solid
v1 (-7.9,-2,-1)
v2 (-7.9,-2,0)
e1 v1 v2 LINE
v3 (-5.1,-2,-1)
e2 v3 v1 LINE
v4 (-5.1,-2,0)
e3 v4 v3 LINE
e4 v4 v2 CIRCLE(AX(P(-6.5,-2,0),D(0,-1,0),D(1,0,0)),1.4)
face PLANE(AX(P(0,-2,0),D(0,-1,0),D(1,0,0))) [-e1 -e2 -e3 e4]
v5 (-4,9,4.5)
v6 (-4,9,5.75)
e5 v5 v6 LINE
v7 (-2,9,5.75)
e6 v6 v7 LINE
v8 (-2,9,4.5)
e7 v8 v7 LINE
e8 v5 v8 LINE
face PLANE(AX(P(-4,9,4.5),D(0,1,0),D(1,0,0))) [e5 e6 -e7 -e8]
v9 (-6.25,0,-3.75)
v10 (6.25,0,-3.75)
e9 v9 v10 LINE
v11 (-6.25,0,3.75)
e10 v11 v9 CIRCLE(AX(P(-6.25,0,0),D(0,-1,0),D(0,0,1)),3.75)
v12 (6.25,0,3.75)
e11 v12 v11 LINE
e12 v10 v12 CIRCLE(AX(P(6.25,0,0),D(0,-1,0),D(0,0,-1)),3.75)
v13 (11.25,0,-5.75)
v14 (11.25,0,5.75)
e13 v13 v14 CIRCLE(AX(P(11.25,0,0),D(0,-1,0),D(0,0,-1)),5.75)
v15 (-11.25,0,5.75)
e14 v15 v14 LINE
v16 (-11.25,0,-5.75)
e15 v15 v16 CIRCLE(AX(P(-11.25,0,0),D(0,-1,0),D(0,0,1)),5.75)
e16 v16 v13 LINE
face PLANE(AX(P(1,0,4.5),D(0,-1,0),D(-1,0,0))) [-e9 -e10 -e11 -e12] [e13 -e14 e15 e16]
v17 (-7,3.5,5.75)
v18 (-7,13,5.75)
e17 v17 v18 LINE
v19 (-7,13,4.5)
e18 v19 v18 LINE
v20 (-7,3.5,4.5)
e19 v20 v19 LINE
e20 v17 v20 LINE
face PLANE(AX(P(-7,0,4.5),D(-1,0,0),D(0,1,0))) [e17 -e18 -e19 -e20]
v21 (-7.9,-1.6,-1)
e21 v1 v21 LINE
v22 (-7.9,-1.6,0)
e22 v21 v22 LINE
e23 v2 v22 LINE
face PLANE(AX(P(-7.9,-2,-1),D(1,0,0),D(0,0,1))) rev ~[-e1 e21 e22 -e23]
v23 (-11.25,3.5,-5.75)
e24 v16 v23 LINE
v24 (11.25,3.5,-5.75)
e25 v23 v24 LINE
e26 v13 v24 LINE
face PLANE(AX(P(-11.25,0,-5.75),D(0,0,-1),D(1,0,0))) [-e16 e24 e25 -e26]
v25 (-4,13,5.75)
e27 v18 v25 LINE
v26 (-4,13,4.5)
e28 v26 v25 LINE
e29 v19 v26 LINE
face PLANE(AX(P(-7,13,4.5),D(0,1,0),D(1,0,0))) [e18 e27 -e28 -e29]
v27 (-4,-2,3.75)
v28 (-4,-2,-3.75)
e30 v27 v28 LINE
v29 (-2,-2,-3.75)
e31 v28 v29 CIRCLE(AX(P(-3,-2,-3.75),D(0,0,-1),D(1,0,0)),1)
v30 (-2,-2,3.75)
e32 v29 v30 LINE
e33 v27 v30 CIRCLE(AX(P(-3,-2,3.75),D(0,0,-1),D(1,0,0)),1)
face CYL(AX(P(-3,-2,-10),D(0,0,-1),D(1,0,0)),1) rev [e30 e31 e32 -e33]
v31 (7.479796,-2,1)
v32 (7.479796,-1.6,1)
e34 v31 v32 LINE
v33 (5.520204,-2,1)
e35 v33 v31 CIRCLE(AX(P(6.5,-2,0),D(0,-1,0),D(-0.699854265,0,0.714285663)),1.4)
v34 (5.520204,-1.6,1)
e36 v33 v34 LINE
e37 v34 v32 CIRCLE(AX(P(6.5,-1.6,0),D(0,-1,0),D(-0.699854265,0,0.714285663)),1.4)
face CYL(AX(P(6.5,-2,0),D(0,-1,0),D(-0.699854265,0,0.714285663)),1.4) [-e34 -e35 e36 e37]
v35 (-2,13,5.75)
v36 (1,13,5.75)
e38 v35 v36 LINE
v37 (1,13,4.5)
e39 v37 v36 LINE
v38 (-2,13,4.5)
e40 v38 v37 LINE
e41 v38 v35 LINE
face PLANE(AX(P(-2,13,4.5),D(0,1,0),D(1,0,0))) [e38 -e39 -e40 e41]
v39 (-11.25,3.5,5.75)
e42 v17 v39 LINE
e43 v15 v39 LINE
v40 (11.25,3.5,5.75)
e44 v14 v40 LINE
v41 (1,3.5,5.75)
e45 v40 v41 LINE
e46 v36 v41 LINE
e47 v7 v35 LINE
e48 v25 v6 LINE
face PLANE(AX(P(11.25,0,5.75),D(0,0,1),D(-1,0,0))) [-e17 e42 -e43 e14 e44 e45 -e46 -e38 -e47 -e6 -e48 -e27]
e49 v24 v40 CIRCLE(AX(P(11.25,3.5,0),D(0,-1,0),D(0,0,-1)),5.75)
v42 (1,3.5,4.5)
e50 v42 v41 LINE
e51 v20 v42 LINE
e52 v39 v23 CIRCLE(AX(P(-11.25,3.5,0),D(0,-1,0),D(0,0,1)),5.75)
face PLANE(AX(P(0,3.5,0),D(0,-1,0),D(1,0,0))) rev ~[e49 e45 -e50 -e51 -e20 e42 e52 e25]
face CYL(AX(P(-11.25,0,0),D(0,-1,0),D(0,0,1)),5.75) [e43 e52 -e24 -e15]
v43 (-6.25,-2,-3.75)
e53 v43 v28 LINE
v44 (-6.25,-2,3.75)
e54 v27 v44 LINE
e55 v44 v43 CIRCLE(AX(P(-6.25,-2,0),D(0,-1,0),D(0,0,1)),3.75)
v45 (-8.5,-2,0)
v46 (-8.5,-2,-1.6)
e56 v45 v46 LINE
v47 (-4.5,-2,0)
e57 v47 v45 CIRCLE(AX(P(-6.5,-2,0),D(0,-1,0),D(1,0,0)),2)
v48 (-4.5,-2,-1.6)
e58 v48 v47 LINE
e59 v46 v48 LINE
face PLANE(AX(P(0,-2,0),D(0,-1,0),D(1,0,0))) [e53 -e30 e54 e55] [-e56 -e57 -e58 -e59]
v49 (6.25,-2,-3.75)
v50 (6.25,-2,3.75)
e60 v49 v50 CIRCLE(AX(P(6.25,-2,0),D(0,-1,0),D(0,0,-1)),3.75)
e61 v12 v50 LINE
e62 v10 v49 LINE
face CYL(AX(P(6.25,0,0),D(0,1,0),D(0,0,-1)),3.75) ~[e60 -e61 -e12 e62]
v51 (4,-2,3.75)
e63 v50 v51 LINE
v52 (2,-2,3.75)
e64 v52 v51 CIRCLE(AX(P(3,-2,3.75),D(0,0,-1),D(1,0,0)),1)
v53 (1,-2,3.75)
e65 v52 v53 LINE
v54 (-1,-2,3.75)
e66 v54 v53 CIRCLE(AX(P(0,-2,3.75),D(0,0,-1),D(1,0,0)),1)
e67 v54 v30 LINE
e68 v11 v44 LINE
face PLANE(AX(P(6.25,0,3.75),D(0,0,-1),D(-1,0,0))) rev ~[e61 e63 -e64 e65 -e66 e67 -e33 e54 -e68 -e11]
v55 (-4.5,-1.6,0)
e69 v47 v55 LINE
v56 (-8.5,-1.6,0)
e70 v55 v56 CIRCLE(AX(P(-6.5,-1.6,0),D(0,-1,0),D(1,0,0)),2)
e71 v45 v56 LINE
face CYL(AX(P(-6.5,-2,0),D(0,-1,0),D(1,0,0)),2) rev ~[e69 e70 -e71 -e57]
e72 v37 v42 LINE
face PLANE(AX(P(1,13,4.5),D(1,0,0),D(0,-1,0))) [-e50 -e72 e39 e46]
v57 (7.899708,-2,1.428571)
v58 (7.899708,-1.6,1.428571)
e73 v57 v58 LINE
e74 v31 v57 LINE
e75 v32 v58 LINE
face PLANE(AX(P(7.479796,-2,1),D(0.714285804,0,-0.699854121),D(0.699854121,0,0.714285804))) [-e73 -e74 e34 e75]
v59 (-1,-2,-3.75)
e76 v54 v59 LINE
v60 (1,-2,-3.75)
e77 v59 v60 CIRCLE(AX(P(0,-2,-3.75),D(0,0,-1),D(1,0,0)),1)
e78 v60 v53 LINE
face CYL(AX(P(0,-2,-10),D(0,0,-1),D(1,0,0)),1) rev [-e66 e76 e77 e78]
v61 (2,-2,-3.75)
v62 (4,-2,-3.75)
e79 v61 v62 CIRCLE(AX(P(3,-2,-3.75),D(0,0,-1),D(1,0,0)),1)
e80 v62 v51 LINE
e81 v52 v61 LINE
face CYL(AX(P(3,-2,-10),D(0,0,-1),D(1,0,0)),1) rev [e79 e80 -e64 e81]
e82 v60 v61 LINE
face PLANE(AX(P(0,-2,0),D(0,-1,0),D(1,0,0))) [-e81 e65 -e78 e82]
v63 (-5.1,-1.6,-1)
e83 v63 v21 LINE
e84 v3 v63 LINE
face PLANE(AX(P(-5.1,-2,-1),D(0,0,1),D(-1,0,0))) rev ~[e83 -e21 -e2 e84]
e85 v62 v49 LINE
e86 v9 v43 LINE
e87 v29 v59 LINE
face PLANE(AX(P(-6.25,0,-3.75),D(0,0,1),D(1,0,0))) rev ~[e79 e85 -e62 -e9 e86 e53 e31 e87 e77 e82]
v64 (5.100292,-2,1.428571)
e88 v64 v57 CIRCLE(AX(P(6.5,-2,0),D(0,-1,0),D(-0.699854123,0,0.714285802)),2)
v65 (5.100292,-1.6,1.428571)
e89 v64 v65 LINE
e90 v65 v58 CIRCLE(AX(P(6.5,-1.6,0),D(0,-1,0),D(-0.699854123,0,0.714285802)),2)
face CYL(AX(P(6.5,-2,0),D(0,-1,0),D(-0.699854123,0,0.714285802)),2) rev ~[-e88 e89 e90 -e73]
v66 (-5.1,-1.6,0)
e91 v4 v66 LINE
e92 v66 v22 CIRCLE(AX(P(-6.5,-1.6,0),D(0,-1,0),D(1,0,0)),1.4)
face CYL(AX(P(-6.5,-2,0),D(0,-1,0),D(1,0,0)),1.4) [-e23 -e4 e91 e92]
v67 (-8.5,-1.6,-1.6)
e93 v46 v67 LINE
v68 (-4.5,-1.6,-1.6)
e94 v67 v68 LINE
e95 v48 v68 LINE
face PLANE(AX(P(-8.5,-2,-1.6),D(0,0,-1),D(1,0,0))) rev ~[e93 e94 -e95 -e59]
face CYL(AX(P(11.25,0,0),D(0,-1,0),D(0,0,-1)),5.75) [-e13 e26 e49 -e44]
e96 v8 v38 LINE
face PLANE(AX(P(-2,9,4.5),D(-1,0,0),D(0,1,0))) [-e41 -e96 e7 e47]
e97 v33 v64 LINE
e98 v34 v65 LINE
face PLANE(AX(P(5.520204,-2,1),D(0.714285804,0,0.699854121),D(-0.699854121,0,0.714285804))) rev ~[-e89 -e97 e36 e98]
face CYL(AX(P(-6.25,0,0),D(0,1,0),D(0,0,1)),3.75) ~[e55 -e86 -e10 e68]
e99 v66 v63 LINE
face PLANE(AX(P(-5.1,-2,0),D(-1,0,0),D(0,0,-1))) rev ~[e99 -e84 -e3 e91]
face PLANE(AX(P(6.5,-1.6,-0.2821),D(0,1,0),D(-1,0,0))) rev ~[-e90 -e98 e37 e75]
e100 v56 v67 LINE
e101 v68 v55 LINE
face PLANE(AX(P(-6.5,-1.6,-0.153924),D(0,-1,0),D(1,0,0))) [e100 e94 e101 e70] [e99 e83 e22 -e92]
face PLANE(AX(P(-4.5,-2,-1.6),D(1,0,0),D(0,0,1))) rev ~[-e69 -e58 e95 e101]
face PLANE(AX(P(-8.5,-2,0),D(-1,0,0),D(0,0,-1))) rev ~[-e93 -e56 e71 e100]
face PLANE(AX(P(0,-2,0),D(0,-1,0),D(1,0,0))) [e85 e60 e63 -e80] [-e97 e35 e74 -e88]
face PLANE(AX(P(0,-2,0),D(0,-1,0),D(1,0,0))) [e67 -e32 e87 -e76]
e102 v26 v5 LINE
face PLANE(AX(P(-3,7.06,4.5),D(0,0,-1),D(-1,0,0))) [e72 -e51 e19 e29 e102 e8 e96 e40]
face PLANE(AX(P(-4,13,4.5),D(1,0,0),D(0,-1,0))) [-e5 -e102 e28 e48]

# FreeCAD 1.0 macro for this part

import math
import FreeCAD as App
import Part
import Sketcher

V = App.Vector
Q = App.Units.Quantity

doc = App.newDocument("Part")
params = doc.addObject("Spreadsheet::Sheet", "Params")
for row, (alias, value) in enumerate([
    ("sketch1_radius", "3.75 mm"),
    ("sketch1_width", "12.5 mm"),
    ("pad1_length", "2 mm"),
    ("sketch2_radius", "5.75 mm"),
    ("sketch2_width", "22.5 mm"),
    ("pad2_length", "3.5 mm"),
    ("sketch3_width", "8 mm"),
    ("sketch3_width2", "3 mm"),
    ("sketch3_height", "13 mm"),
    ("sketch3_height2", "4 mm"),
    ("pad3_length", "1.25 mm"),
    ("sketch4_diameter", "2 mm"),
    ("pocket1_length", "20 mm"),
    ("linearpattern_pitch", "3 mm"),
    ("sketch5_radius", "2 mm"),
    ("sketch5_radius2", "1.4 mm"),
    ("sketch5_height", "1 mm"),
    ("sketch5_height2", "1.6 mm"),
    ("pocket2_length", "0.4 mm"),
], start=1):
    params.set(f"A{row}", alias)
    params.set(f"B{row}", "=" + value)
    params.setAlias(f"B{row}", alias)

body = doc.addObject("PartDesign::Body", "Body")

sketch1 = body.newObject("Sketcher::SketchObject", "Sketch")
sketch1.AttachmentSupport = (doc.getObject("XZ_Plane"), [""])
sketch1.MapMode = "FlatFace"
sketch1.addGeometry([
    Part.ArcOfCircle(Part.Circle(V(-6.2, 0, 0), V(0, 0, 1), 3.8), math.radians(90), math.radians(270)),
    Part.LineSegment(V(-6.2, -3.8, 0), V(6.2, -3.8, 0)),
    Part.ArcOfCircle(Part.Circle(V(6.2, 0, 0), V(0, 0, 1), 3.8), math.radians(-90), math.radians(90)),
    Part.LineSegment(V(6.2, 3.8, 0), V(-6.2, 3.8, 0)),
], False)
sketch1.addConstraint([
    Sketcher.Constraint("Tangent", 0, 2, 1, 1),
    Sketcher.Constraint("Tangent", 1, 2, 2, 1),
    Sketcher.Constraint("Tangent", 2, 2, 3, 1),
    Sketcher.Constraint("Tangent", 3, 2, 0, 1),
    Sketcher.Constraint("Horizontal", 1),
    Sketcher.Constraint("Horizontal", 3),
    Sketcher.Constraint("Symmetric", 0, 3, 2, 3, -1, 1),
    Sketcher.Constraint("Radius", 0, Q("3.75 mm")),
    Sketcher.Constraint("DistanceX", 1, 1, 1, 2, Q("12.5 mm")),
])
sketch1.setExpression("Constraints[7]", "Params.sketch1_radius")
sketch1.setExpression("Constraints[8]", "Params.sketch1_width")
pad1 = body.newObject("PartDesign::Pad", "Pad")
pad1.Profile = sketch1
pad1.setExpression("Length", "Params.pad1_length")

sketch2 = body.newObject("Sketcher::SketchObject", "Sketch001")
sketch2.AttachmentSupport = (doc.getObject("XZ_Plane"), [""])
sketch2.MapMode = "FlatFace"
sketch2.addGeometry([
    Part.ArcOfCircle(Part.Circle(V(-11, 0, 0), V(0, 0, 1), 6), math.radians(90), math.radians(270)),
    Part.LineSegment(V(-11, -6, 0), V(11, -6, 0)),
    Part.ArcOfCircle(Part.Circle(V(11, 0, 0), V(0, 0, 1), 6), math.radians(-90), math.radians(90)),
    Part.LineSegment(V(11, 6, 0), V(-11, 6, 0)),
], False)
sketch2.addConstraint([
    Sketcher.Constraint("Tangent", 0, 2, 1, 1),
    Sketcher.Constraint("Tangent", 1, 2, 2, 1),
    Sketcher.Constraint("Tangent", 2, 2, 3, 1),
    Sketcher.Constraint("Tangent", 3, 2, 0, 1),
    Sketcher.Constraint("Horizontal", 1),
    Sketcher.Constraint("Horizontal", 3),
    Sketcher.Constraint("Symmetric", 0, 3, 2, 3, -1, 1),
    Sketcher.Constraint("Radius", 0, Q("5.75 mm")),
    Sketcher.Constraint("DistanceX", 1, 1, 1, 2, Q("22.5 mm")),
])
sketch2.setExpression("Constraints[7]", "Params.sketch2_radius")
sketch2.setExpression("Constraints[8]", "Params.sketch2_width")
pad2 = body.newObject("PartDesign::Pad", "Pad001")
pad2.Profile = sketch2
pad2.setExpression("Length", "Params.pad2_length")
pad2.Reversed = True

sketch3 = body.newObject("Sketcher::SketchObject", "Sketch002")
sketch3.AttachmentSupport = (doc.getObject("XY_Plane"), [""])
sketch3.MapMode = "FlatFace"
sketch3.AttachmentOffset = App.Placement(V(0, 0, 4.5), App.Rotation())
sketch3.addGeometry([
    Part.LineSegment(V(-7, 13, 0), V(-7, 0, 0)),
    Part.LineSegment(V(-7, 0, 0), V(1, 0, 0)),
    Part.LineSegment(V(1, 0, 0), V(1, 13, 0)),
    Part.LineSegment(V(1, 13, 0), V(-2, 13, 0)),
    Part.LineSegment(V(-2, 13, 0), V(-2, 9, 0)),
    Part.LineSegment(V(-2, 9, 0), V(-4, 9, 0)),
    Part.LineSegment(V(-4, 9, 0), V(-4, 13, 0)),
    Part.LineSegment(V(-4, 13, 0), V(-7, 13, 0)),
], False)
sketch3.addConstraint([
    Sketcher.Constraint("Coincident", 0, 2, 1, 1),
    Sketcher.Constraint("Coincident", 1, 2, 2, 1),
    Sketcher.Constraint("Coincident", 2, 2, 3, 1),
    Sketcher.Constraint("Coincident", 3, 2, 4, 1),
    Sketcher.Constraint("Coincident", 4, 2, 5, 1),
    Sketcher.Constraint("Coincident", 5, 2, 6, 1),
    Sketcher.Constraint("Coincident", 6, 2, 7, 1),
    Sketcher.Constraint("Coincident", 7, 2, 0, 1),
    Sketcher.Constraint("Vertical", 0),
    Sketcher.Constraint("Horizontal", 1),
    Sketcher.Constraint("Vertical", 2),
    Sketcher.Constraint("Horizontal", 3),
    Sketcher.Constraint("Vertical", 4),
    Sketcher.Constraint("Horizontal", 5),
    Sketcher.Constraint("Vertical", 6),
    Sketcher.Constraint("Horizontal", 7),
    Sketcher.Constraint("PointOnObject", 0, 2, -1),
    Sketcher.Constraint("Horizontal", 3, 2, 6, 2),
    Sketcher.Constraint("Equal", 3, 7),
    Sketcher.Constraint("DistanceX", 1, 1, 1, 2, Q("8 mm")),
    Sketcher.Constraint("DistanceX", 3, 2, 3, 1, Q("3 mm")),
    Sketcher.Constraint("DistanceY", 0, 2, 0, 1, Q("13 mm")),
    Sketcher.Constraint("DistanceY", 4, 2, 4, 1, Q("4 mm")),
    Sketcher.Constraint("DistanceX", 0, 2, -1, 1, Q("7 mm")),
])
sketch3.setExpression("Constraints[19]", "Params.sketch3_width")
sketch3.setExpression("Constraints[20]", "Params.sketch3_width2")
sketch3.setExpression("Constraints[21]", "Params.sketch3_height")
sketch3.setExpression("Constraints[22]", "Params.sketch3_height2")
pad3 = body.newObject("PartDesign::Pad", "Pad002")
pad3.Profile = sketch3
pad3.setExpression("Length", "Params.pad3_length")

sketch4 = body.newObject("Sketcher::SketchObject", "Sketch003")
sketch4.AttachmentSupport = (doc.getObject("XY_Plane"), [""])
sketch4.MapMode = "FlatFace"
sketch4.AttachmentOffset = App.Placement(V(0, 0, -10), App.Rotation())
sketch4.addGeometry(Part.Circle(V(-3, -2, 0), V(0, 0, 1), 1), False)
sketch4.addConstraint([
    Sketcher.Constraint("Diameter", 0, Q("2 mm")),
    Sketcher.Constraint("DistanceX", 0, 3, -1, 1, Q("3 mm")),
    Sketcher.Constraint("DistanceY", 0, 3, -1, 1, Q("2 mm")),
])
sketch4.setExpression("Constraints[0]", "Params.sketch4_diameter")
pocket1 = body.newObject("PartDesign::Pocket", "Pocket")
pocket1.Profile = sketch4
pocket1.setExpression("Length", "Params.pocket1_length")
pocket1.Reversed = True
doc.recompute()

linearpattern = body.newObject("PartDesign::LinearPattern", "LinearPattern")
linearpattern.Originals = [pocket1]
linearpattern.Direction = (doc.getObject("X_Axis"), [""])
linearpattern.Mode = "offset"
linearpattern.setExpression("Offset", "Params.linearpattern_pitch")
linearpattern.Occurrences = 3
body.Tip = linearpattern

sketch5 = body.newObject("Sketcher::SketchObject", "Sketch004")
sketch5.AttachmentSupport = (doc.getObject("XZ_Plane"), [""])
sketch5.MapMode = "FlatFace"
sketch5.AttachmentOffset = App.Placement(V(0, 0, 2), App.Rotation())
sketch5.addGeometry([
    Part.ArcOfCircle(Part.Circle(V(-6.5, 0, 0), V(0, 0, 1), 2), math.radians(0), math.radians(180)),
    Part.LineSegment(V(-8.5, 0, 0), V(-8.5, -1.6, 0)),
    Part.LineSegment(V(-8.5, -1.6, 0), V(-4.5, -1.6, 0)),
    Part.LineSegment(V(-4.5, -1.6, 0), V(-4.5, 0, 0)),
    Part.ArcOfCircle(Part.Circle(V(-6.5, 0, 0), V(0, 0, 1), 1.4), math.radians(0), math.radians(180)),
    Part.LineSegment(V(-5.1, 0, 0), V(-5.1, -1, 0)),
    Part.LineSegment(V(-5.1, -1, 0), V(-7.9, -1, 0)),
    Part.LineSegment(V(-7.9, -1, 0), V(-7.9, 0, 0)),
    Part.ArcOfCircle(Part.Circle(V(6.5, 0, 0), V(0, 0, 1), 1.4), math.radians(134), math.radians(406)),
    Part.LineSegment(V(5.5, 1, 0), V(5.1, 1.4, 0)),
    Part.ArcOfCircle(Part.Circle(V(6.5, 0, 0), V(0, 0, 1), 2), math.radians(134), math.radians(406)),
    Part.LineSegment(V(7.9, 1.4, 0), V(7.5, 1, 0)),
], False)
sketch5.addConstraint([
    Sketcher.Constraint("Tangent", 0, 2, 1, 1),
    Sketcher.Constraint("Coincident", 1, 2, 2, 1),
    Sketcher.Constraint("Coincident", 2, 2, 3, 1),
    Sketcher.Constraint("Tangent", 3, 2, 0, 1),
    Sketcher.Constraint("Tangent", 4, 1, 5, 1),
    Sketcher.Constraint("Coincident", 5, 2, 6, 1),
    Sketcher.Constraint("Coincident", 6, 2, 7, 1),
    Sketcher.Constraint("Tangent", 7, 2, 4, 2),
    Sketcher.Constraint("Coincident", 8, 1, 9, 1),
    Sketcher.Constraint("Coincident", 9, 2, 10, 1),
    Sketcher.Constraint("Coincident", 10, 2, 11, 1),
    Sketcher.Constraint("Coincident", 11, 2, 8, 2),
    Sketcher.Constraint("Vertical", 1),
    Sketcher.Constraint("Horizontal", 2),
    Sketcher.Constraint("Vertical", 3),
    Sketcher.Constraint("Vertical", 5),
    Sketcher.Constraint("Horizontal", 6),
    Sketcher.Constraint("Vertical", 7),
    Sketcher.Constraint("Coincident", 4, 3, 0, 3),
    Sketcher.Constraint("Coincident", 10, 3, 8, 3),
    Sketcher.Constraint("Equal", 4, 8),
    Sketcher.Constraint("Equal", 0, 10),
    Sketcher.Constraint("Symmetric", 0, 3, 8, 3, -1, 1),
    Sketcher.Constraint("PointOnObject", 0, 3, -1),
    Sketcher.Constraint("Horizontal", 9, 2, 10, 2),
    Sketcher.Constraint("Horizontal", 8, 1, 11, 2),
    Sketcher.Constraint("Radius", 0, Q("2 mm")),
    Sketcher.Constraint("Radius", 4, Q("1.4 mm")),
    Sketcher.Constraint("DistanceY", 5, 2, 5, 1, Q("1 mm")),
    Sketcher.Constraint("DistanceY", 1, 2, 1, 1, Q("1.6 mm")),
    Sketcher.Constraint("DistanceY", -1, 1, 8, 1, Q("1 mm")),
    Sketcher.Constraint("DistanceX", 0, 3, 8, 3, Q("13 mm")),
    Sketcher.Constraint("DistanceX", -1, 1, 9, 2, Q("5.100292 mm")),
])
sketch5.setExpression("Constraints[26]", "Params.sketch5_radius")
sketch5.setExpression("Constraints[27]", "Params.sketch5_radius2")
sketch5.setExpression("Constraints[28]", "Params.sketch5_height")
sketch5.setExpression("Constraints[29]", "Params.sketch5_height2")
pocket2 = body.newObject("PartDesign::Pocket", "Pocket001")
pocket2.Profile = sketch5
pocket2.setExpression("Length", "Params.pocket2_length")

doc.recompute()
